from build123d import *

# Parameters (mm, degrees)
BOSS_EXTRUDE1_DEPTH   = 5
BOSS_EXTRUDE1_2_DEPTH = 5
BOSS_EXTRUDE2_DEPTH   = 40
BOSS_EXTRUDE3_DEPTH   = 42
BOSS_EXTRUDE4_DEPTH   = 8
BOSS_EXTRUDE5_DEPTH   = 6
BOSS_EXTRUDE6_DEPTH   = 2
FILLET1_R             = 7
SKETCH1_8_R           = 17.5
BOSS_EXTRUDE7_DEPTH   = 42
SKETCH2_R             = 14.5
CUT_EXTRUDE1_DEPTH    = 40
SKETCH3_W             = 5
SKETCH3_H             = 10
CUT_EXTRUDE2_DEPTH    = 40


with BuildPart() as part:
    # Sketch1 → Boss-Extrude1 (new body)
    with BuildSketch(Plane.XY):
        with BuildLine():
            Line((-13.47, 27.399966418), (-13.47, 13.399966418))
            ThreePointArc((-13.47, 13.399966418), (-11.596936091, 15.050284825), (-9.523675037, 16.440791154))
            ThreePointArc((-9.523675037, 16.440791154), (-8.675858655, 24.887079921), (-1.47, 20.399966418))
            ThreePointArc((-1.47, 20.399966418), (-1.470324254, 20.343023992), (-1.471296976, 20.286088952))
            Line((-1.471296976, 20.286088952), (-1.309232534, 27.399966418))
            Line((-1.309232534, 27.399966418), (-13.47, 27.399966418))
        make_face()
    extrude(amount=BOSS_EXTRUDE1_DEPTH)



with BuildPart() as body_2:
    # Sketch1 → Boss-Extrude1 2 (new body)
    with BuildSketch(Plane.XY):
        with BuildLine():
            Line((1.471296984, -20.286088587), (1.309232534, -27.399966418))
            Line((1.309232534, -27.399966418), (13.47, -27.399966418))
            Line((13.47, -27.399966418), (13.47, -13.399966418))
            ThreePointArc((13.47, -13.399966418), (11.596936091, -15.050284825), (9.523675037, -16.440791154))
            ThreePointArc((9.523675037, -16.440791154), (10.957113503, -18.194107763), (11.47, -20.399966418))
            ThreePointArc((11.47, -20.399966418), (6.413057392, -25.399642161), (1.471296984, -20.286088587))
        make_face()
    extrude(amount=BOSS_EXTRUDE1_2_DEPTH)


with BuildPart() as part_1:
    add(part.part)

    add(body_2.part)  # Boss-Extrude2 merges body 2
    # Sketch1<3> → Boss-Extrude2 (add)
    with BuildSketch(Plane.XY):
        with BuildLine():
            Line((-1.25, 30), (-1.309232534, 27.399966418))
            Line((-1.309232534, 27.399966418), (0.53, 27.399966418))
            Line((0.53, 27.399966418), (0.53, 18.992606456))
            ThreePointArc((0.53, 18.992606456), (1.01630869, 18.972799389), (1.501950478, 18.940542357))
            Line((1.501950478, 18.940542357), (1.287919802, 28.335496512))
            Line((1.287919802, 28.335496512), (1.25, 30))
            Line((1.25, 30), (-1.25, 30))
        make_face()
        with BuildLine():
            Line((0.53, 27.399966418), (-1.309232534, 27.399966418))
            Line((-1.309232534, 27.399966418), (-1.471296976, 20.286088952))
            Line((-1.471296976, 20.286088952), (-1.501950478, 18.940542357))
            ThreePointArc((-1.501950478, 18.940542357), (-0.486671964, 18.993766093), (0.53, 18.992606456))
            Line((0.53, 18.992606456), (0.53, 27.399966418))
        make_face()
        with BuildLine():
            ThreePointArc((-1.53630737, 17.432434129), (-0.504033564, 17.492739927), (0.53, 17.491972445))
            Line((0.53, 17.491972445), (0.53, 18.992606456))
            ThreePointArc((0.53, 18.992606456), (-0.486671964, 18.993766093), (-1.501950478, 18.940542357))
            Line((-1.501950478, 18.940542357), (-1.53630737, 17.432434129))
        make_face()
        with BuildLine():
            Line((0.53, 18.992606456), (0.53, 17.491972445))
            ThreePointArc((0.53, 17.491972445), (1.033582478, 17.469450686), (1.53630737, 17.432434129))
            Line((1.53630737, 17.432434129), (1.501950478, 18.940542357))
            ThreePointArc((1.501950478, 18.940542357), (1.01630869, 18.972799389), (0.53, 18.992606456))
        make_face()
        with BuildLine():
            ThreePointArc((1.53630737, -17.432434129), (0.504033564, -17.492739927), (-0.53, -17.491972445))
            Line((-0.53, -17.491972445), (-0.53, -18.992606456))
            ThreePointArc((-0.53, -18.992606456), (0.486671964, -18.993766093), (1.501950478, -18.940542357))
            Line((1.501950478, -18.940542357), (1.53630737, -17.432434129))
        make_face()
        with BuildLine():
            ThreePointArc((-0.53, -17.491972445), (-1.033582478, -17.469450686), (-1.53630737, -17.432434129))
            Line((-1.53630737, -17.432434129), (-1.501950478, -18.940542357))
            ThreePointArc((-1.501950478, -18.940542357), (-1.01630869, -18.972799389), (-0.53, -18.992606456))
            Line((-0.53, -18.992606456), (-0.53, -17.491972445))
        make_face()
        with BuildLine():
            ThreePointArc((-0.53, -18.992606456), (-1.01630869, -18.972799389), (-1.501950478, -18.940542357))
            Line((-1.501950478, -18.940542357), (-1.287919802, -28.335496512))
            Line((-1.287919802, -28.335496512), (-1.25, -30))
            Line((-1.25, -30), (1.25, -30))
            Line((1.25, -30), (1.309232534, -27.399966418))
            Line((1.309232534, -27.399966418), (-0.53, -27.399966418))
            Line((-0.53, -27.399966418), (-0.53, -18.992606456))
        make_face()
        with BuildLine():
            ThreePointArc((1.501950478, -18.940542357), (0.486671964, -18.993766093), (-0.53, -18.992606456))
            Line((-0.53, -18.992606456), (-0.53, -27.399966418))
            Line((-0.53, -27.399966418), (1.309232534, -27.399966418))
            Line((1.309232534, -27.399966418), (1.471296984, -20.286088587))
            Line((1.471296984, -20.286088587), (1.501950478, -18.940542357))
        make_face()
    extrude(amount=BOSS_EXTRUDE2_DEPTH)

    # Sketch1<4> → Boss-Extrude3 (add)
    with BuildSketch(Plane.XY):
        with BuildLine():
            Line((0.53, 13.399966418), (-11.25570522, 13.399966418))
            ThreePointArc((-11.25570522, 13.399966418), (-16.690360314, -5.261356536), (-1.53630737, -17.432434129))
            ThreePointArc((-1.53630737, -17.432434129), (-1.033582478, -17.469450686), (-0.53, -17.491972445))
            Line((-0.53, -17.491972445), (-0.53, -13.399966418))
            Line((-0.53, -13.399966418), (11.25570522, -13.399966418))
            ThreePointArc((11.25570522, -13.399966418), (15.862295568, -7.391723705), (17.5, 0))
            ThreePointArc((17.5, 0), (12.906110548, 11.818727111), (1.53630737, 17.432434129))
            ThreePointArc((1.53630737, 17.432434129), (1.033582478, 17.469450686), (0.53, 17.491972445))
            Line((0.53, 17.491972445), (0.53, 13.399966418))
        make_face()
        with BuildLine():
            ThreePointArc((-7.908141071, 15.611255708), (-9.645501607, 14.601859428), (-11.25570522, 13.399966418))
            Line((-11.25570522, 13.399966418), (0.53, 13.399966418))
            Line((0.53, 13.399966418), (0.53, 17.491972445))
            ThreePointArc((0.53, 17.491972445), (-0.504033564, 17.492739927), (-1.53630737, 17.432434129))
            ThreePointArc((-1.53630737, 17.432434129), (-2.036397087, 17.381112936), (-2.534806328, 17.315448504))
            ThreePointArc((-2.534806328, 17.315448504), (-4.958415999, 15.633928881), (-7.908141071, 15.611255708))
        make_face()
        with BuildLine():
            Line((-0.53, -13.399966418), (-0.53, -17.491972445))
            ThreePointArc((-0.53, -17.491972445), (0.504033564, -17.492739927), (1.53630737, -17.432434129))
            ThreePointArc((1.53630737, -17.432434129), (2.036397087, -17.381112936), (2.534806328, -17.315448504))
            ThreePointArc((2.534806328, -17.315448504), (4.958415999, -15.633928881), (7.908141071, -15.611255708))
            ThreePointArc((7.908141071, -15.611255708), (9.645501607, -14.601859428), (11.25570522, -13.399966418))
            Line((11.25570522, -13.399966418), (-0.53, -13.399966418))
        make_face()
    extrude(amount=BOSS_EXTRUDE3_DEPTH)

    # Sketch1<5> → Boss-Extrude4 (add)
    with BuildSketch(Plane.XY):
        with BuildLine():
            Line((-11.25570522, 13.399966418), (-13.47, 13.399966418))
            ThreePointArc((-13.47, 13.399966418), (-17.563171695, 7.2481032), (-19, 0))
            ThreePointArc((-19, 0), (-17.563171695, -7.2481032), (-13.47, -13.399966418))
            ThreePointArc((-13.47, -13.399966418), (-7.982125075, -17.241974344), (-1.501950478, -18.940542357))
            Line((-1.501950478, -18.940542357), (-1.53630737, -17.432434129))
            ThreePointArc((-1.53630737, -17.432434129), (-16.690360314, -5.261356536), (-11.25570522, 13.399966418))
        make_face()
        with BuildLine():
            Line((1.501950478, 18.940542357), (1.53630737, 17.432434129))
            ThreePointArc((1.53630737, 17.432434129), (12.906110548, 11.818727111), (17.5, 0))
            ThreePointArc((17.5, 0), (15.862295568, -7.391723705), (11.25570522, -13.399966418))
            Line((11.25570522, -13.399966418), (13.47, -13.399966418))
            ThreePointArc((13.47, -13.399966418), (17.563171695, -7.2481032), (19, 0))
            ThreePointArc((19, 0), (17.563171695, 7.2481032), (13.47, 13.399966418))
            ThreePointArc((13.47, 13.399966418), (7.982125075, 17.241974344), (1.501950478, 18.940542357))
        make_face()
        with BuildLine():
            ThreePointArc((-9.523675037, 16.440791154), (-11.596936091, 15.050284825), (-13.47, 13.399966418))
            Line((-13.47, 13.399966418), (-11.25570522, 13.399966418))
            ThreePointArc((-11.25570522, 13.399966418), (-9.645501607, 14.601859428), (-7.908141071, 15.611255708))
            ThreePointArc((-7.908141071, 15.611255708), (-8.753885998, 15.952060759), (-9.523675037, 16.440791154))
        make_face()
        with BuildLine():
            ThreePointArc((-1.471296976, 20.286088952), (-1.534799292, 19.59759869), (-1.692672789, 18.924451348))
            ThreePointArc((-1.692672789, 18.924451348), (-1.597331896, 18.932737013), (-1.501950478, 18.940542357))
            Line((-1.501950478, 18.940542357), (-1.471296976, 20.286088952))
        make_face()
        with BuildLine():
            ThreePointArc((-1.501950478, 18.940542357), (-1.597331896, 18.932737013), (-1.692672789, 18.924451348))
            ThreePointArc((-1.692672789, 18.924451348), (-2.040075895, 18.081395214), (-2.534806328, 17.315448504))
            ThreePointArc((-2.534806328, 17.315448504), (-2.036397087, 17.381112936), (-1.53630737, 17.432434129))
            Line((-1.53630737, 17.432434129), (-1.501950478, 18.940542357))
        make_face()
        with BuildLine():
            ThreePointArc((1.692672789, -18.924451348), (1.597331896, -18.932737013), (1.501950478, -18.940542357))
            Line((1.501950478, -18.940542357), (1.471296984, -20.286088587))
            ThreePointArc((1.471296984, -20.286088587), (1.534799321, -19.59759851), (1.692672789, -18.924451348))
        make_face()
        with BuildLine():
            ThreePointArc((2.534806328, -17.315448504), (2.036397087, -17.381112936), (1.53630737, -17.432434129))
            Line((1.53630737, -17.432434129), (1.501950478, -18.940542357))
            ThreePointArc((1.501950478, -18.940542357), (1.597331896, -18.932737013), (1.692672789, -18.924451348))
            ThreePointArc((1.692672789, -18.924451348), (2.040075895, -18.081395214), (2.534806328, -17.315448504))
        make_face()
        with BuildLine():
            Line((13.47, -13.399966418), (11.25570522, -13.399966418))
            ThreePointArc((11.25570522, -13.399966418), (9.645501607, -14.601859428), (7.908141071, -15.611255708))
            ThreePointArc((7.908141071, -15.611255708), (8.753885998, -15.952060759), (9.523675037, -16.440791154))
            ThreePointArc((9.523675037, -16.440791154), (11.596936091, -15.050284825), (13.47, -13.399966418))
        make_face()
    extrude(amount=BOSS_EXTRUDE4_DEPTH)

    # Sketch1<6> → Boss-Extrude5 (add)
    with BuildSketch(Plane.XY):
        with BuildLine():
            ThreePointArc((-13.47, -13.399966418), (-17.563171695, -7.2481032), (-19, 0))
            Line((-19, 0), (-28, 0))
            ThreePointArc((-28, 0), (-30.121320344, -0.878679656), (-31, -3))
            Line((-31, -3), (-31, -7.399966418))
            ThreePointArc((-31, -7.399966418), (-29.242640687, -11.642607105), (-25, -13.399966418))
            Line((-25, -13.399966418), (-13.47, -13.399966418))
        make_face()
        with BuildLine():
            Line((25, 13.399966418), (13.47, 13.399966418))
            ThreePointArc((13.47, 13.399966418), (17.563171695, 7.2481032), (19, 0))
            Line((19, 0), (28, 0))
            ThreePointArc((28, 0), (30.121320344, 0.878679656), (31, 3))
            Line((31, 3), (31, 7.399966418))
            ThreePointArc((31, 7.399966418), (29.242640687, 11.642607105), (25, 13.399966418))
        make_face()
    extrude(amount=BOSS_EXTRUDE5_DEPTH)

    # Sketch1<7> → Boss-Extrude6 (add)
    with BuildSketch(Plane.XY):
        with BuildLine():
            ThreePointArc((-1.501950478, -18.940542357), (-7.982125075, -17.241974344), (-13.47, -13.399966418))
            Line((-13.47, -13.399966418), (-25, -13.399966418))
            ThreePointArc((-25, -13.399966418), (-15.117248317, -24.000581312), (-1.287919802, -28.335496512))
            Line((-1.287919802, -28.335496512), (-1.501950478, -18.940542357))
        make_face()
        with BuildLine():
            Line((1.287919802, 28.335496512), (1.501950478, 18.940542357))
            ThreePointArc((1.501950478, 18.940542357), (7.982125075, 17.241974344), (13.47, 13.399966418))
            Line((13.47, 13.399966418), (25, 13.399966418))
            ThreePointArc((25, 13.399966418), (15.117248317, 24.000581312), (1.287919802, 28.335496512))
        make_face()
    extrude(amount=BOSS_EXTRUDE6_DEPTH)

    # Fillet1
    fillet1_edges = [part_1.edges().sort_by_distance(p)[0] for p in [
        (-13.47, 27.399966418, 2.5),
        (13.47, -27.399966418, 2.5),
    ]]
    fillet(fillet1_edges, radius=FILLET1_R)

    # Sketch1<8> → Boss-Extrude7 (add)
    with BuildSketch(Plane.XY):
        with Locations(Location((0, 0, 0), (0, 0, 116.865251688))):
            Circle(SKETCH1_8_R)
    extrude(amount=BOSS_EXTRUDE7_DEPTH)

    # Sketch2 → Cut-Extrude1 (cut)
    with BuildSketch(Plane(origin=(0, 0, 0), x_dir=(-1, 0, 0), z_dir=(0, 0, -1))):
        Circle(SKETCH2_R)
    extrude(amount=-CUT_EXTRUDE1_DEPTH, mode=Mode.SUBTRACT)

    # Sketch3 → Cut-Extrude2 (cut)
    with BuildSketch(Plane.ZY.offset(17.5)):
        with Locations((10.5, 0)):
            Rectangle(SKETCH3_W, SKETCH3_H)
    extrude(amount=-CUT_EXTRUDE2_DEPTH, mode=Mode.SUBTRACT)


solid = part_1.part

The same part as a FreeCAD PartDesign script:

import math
import FreeCAD as App
import Part
import Sketcher
Q = App.Units.Quantity


def edges_at(feature, points):
    """Names of the edges that pass closest to the given points."""
    edges = feature.Shape.Edges
    near = lambda p: min(range(len(edges)), key=lambda i: edges[i].distToShape(Part.Vertex(*p))[0])
    return sorted({f"Edge{near(p) + 1}" for p in points})


def add_polygon(sketch, points):
    """Adds a closed chain of lines whose ends are joined by coincident constraints."""
    first, n = sketch.GeometryCount, len(points)
    for a, b in zip(points, points[1:] + points[:1]):
        sketch.addGeometry(Part.LineSegment(App.Vector(*a, 0), App.Vector(*b, 0)), False)
    for i in range(n):
        sketch.addConstraint(Sketcher.Constraint("Coincident", first + i, 2, first + (i + 1) % n, 1))

doc = App.newDocument("Part")
body = doc.addObject("PartDesign::Body", "Body")

sketch1 = body.newObject("Sketcher::SketchObject", "Sketch")
sketch1.AttachmentSupport = (doc.getObject("XY_Plane"), [""])
sketch1.MapMode = "FlatFace"
sketch1.addGeometry([
    Part.LineSegment(App.Vector(-13.47, 27.399966, 0), App.Vector(-13.47, 13.399966, 0)),
    Part.ArcOfCircle(Part.Circle(App.Vector(0, 0, 0), App.Vector(0, 0, 1), 19), math.radians(120.082473), math.radians(135.149335)),
    Part.ArcOfCircle(Part.Circle(App.Vector(-6.47, 20.399966, 0), App.Vector(0, 0, 1), 5), math.radians(0), math.radians(232.357332)),
    Part.ArcOfCircle(Part.Circle(App.Vector(-6.469992, 20.399966, 0), App.Vector(0, 0, 1), 4.999992), math.radians(-1.305054), math.radians(0.000001)),
    Part.LineSegment(App.Vector(-1.471297, 20.286089, 0), App.Vector(-1.309233, 27.399966, 0)),
    Part.LineSegment(App.Vector(-1.309233, 27.399966, 0), App.Vector(-13.47, 27.399966, 0)),
], False)
sketch1.addConstraint([
    Sketcher.Constraint("Coincident", 0, 2, 1, 2),
    Sketcher.Constraint("Coincident", 1, 1, 2, 2),
    Sketcher.Constraint("Tangent", 2, 1, 3, 2),
    Sketcher.Constraint("Tangent", 3, 1, 4, 1),
    Sketcher.Constraint("Coincident", 4, 2, 5, 1),
    Sketcher.Constraint("Coincident", 5, 2, 0, 1),
    Sketcher.Constraint("Vertical", 0),
    Sketcher.Constraint("Horizontal", 5),
    Sketcher.Constraint("Coincident", 1, 3, -1, 1),
    Sketcher.Constraint("Horizontal", 3, 3, 2, 1),
    Sketcher.Constraint("Radius", 1, Q("19 mm")),
    Sketcher.Constraint("Radius", 2, Q("5 mm")),
    Sketcher.Constraint("DistanceY", 0, 2, 0, 1, Q("14 mm")),
    Sketcher.Constraint("DistanceX", 0, 2, 2, 3, Q("7 mm")),
    Sketcher.Constraint("DistanceY", 0, 2, 2, 3, Q("7 mm")),
    Sketcher.Constraint("DistanceX", 2, 3, -1, 1, Q("6.47 mm")),
    Sketcher.Constraint("Radius", 3, Q("4.999992 mm")),
    Sketcher.Constraint("DistanceX", 5, 2, 5, 1, Q("12.160767 mm")),
])
pad1 = body.newObject("PartDesign::Pad", "Pad")
pad1.Profile = sketch1
pad1.Length = 5
body2 = doc.addObject("PartDesign::Body", "Body001")

sketch2 = body2.newObject("Sketcher::SketchObject", "Sketch001")
sketch2.AttachmentSupport = (doc.getObject("XY_Plane001"), [""])
sketch2.MapMode = "FlatFace"
sketch2.addGeometry([
    Part.LineSegment(App.Vector(1.471297, -20.286089, 0), App.Vector(1.309233, -27.399966, 0)),
    Part.LineSegment(App.Vector(1.309233, -27.399966, 0), App.Vector(13.47, -27.399966, 0)),
    Part.LineSegment(App.Vector(13.47, -27.399966, 0), App.Vector(13.47, -13.399966, 0)),
    Part.ArcOfCircle(Part.Circle(App.Vector(0, 0, 0), App.Vector(0, 0, 1), 19), math.radians(-59.917527), math.radians(-44.850665)),
    Part.ArcOfCircle(Part.Circle(App.Vector(6.47, -20.399966, 0), App.Vector(0, 0, 1), 5), math.radians(0), math.radians(52.357332)),
    Part.ArcOfCircle(Part.Circle(App.Vector(6.47, -20.399966, 0), App.Vector(0, 0, 1), 5), math.radians(178.694943), math.radians(360)),
], False)
sketch2.addConstraint([
    Sketcher.Constraint("Coincident", 0, 2, 1, 1),
    Sketcher.Constraint("Coincident", 1, 2, 2, 1),
    Sketcher.Constraint("Coincident", 2, 2, 3, 2),
    Sketcher.Constraint("Coincident", 3, 1, 4, 2),
    Sketcher.Constraint("Tangent", 4, 1, 5, 2),
    Sketcher.Constraint("Tangent", 5, 1, 0, 1),
    Sketcher.Constraint("Horizontal", 1),
    Sketcher.Constraint("Vertical", 2),
    Sketcher.Constraint("Coincident", 3, 3, -1, 1),
    Sketcher.Constraint("Equal", 4, 5),
    Sketcher.Constraint("Horizontal", 5, 3, 4, 1),
    Sketcher.Constraint("Radius", 3, Q("19 mm")),
    Sketcher.Constraint("Radius", 4, Q("5 mm")),
    Sketcher.Constraint("DistanceY", 2, 1, 2, 2, Q("14 mm")),
    Sketcher.Constraint("DistanceY", 0, 2, 4, 3, Q("7 mm")),
    Sketcher.Constraint("DistanceX", 5, 3, 1, 2, Q("7 mm")),
    Sketcher.Constraint("DistanceX", -1, 1, 4, 3, Q("6.47 mm")),
    Sketcher.Constraint("DistanceX", 1, 1, 1, 2, Q("12.160767 mm")),
])
pad2 = body2.newObject("PartDesign::Pad", "Pad001")
pad2.Profile = sketch2
pad2.Length = 5
body.AllowCompound = True
doc.recompute()

boolean = body.newObject("PartDesign::Boolean", "Boolean")
boolean.Type = "Fuse"
boolean.addObjects([body2])

sketch3 = body.newObject("Sketcher::SketchObject", "Sketch002")
sketch3.AttachmentSupport = (doc.getObject("XY_Plane"), [""])
sketch3.MapMode = "FlatFace"
sketch3.addGeometry([
    Part.LineSegment(App.Vector(-1.25, 30, 0), App.Vector(-1.309233, 27.399966, 0)),
    Part.LineSegment(App.Vector(-1.309233, 27.399966, 0), App.Vector(-1.471297, 20.286089, 0)),
    Part.LineSegment(App.Vector(-1.471297, 20.286089, 0), App.Vector(-1.50195, 18.940542, 0)),
    Part.LineSegment(App.Vector(-1.50195, 18.940542, 0), App.Vector(-1.536307, 17.432434, 0)),
    Part.ArcOfCircle(Part.Circle(App.Vector(0, 0, 0), App.Vector(0, 0, 1), 17.5), math.radians(88.264491), math.radians(95.036422)),
    Part.ArcOfCircle(Part.Circle(App.Vector(0, 0, 0), App.Vector(0, 0, 1), 17.5), math.radians(84.963578), math.radians(88.264491)),
    Part.LineSegment(App.Vector(1.536307, 17.432434, 0), App.Vector(1.50195, 18.940542, 0)),
    Part.LineSegment(App.Vector(1.50195, 18.940542, 0), App.Vector(1.28792, 28.335497, 0)),
    Part.LineSegment(App.Vector(1.28792, 28.335497, 0), App.Vector(1.25, 30, 0)),
    Part.LineSegment(App.Vector(1.25, 30, 0), App.Vector(-1.25, 30, 0)),
    Part.ArcOfCircle(Part.Circle(App.Vector(0, 0, 0), App.Vector(0, 0, 1), 17.5), math.radians(-91.735509), math.radians(-84.963578)),
    Part.ArcOfCircle(Part.Circle(App.Vector(0, 0, 0), App.Vector(0, 0, 1), 17.5), math.radians(-95.036422), math.radians(-91.735509)),
    Part.LineSegment(App.Vector(-1.536307, -17.432434, 0), App.Vector(-1.50195, -18.940542, 0)),
    Part.LineSegment(App.Vector(-1.50195, -18.940542, 0), App.Vector(-1.28792, -28.335497, 0)),
    Part.LineSegment(App.Vector(-1.28792, -28.335497, 0), App.Vector(-1.25, -30, 0)),
    Part.LineSegment(App.Vector(-1.25, -30, 0), App.Vector(1.25, -30, 0)),
    Part.LineSegment(App.Vector(1.25, -30, 0), App.Vector(1.309233, -27.399966, 0)),
    Part.LineSegment(App.Vector(1.309233, -27.399966, 0), App.Vector(1.471297, -20.286089, 0)),
    Part.LineSegment(App.Vector(1.471297, -20.286089, 0), App.Vector(1.50195, -18.940542, 0)),
    Part.LineSegment(App.Vector(1.50195, -18.940542, 0), App.Vector(1.536307, -17.432434, 0)),
], False)
sketch3.addConstraint([
    Sketcher.Constraint("Coincident", 0, 2, 1, 1),
    Sketcher.Constraint("Coincident", 1, 2, 2, 1),
    Sketcher.Constraint("Coincident", 2, 2, 3, 1),
    Sketcher.Constraint("Coincident", 3, 2, 4, 2),
    Sketcher.Constraint("Tangent", 4, 1, 5, 2),
    Sketcher.Constraint("Coincident", 5, 1, 6, 1),
    Sketcher.Constraint("Coincident", 6, 2, 7, 1),
    Sketcher.Constraint("Coincident", 7, 2, 8, 1),
    Sketcher.Constraint("Coincident", 8, 2, 9, 1),
    Sketcher.Constraint("Coincident", 9, 2, 0, 1),
    Sketcher.Constraint("Tangent", 10, 1, 11, 2),
    Sketcher.Constraint("Coincident", 11, 1, 12, 1),
    Sketcher.Constraint("Coincident", 12, 2, 13, 1),
    Sketcher.Constraint("Coincident", 13, 2, 14, 1),
    Sketcher.Constraint("Coincident", 14, 2, 15, 1),
    Sketcher.Constraint("Coincident", 15, 2, 16, 1),
    Sketcher.Constraint("Coincident", 16, 2, 17, 1),
    Sketcher.Constraint("Coincident", 17, 2, 18, 1),
    Sketcher.Constraint("Coincident", 18, 2, 19, 1),
    Sketcher.Constraint("Coincident", 19, 2, 10, 2),
    Sketcher.Constraint("Horizontal", 9),
    Sketcher.Constraint("Horizontal", 15),
    Sketcher.Constraint("Coincident", 4, 3, -1, 1),
    Sketcher.Constraint("Coincident", 10, 3, -1, 1),
    Sketcher.Constraint("Equal", 4, 5),
    Sketcher.Constraint("Equal", 5, 10),
    Sketcher.Constraint("Equal", 10, 11),
    Sketcher.Constraint("Symmetric", 6, 2, 12, 2, -1, 1),
    Sketcher.Constraint("Symmetric", 7, 2, 13, 2, -1, 1),
    Sketcher.Constraint("Symmetric", 8, 2, 14, 2, -1, 1),
    Sketcher.Constraint("Symmetric", 0, 2, 16, 2, -1, 1),
    Sketcher.Constraint("Symmetric", 1, 2, 17, 2, -1, 1),
    Sketcher.Constraint("Symmetric", 2, 2, 18, 2, -1, 1),
    Sketcher.Constraint("Symmetric", 2, 2, 6, 2, -2),
    Sketcher.Constraint("Parallel", 0, 1),
    Sketcher.Constraint("Parallel", 1, 2),
    Sketcher.Constraint("Parallel", 2, 3),
    Sketcher.Constraint("Parallel", 6, 7),
    Sketcher.Constraint("Parallel", 7, 8),
    Sketcher.Constraint("Parallel", 8, 12),
    Sketcher.Constraint("Parallel", 3, 16),
    Sketcher.Constraint("Parallel", 18, 19),
    Sketcher.Constraint("Horizontal", 3, 2, 5, 1),
    Sketcher.Constraint("Radius", 4, Q("17.5 mm")),
    Sketcher.Constraint("DistanceX", 9, 2, 9, 1, Q("2.5 mm")),
    Sketcher.Constraint("DistanceY", -1, 1, 8, 2, Q("30 mm")),
    Sketcher.Constraint("DistanceX", -1, 1, 4, 1, Q("0.53 mm")),
    Sketcher.Constraint("DistanceX", 10, 1, -1, 1, Q("0.53 mm")),
    Sketcher.Constraint("Distance", 3, Q("1.5085 mm")),
    Sketcher.Constraint("DistanceX", 2, 2, 6, 2, Q("3.003901 mm")),
    Sketcher.Constraint("Distance", 0, Q("2.600708 mm")),
    Sketcher.Constraint("Distance", 7, Q("9.397392 mm")),
    Sketcher.Constraint("DistanceY", -1, 1, 1, 2, Q("20.286089 mm")),
])
pad3 = body.newObject("PartDesign::Pad", "Pad002")
pad3.Profile = sketch3
pad3.Length = 40

sketch4 = body.newObject("Sketcher::SketchObject", "Sketch003")
sketch4.AttachmentSupport = (doc.getObject("XY_Plane"), [""])
sketch4.MapMode = "FlatFace"
sketch4.addGeometry([
    Part.ArcOfCircle(Part.Circle(App.Vector(0, 0, 0), App.Vector(0, 0, 1), 17.5), math.radians(130.029591), math.radians(264.963578)),
    Part.ArcOfCircle(Part.Circle(App.Vector(0, 0, 0), App.Vector(0, 0, 1), 17.5), math.radians(-95.036422), math.radians(-91.735509)),
    Part.ArcOfCircle(Part.Circle(App.Vector(0, 0, 0), App.Vector(0, 0, 1), 17.5), math.radians(-91.735509), math.radians(-84.963578)),
    Part.ArcOfCircle(Part.Circle(App.Vector(0, 0.000001, 0), App.Vector(0, 0, 1), 17.500001), math.radians(-84.963578), math.radians(-81.671634)),
    Part.ArcOfCircle(Part.Circle(App.Vector(6.47, -20.399966, 0), App.Vector(0, 0, 1), 5), math.radians(73.283986), math.radians(141.909631)),
    Part.ArcOfCircle(Part.Circle(App.Vector(0, 0, 0), App.Vector(0, 0, 1), 17.5), math.radians(-63.134748), math.radians(-49.970409)),
    Part.ArcOfCircle(Part.Circle(App.Vector(0, 0, 0), App.Vector(0, 0, 1), 17.5), math.radians(-49.970409), math.radians(0)),
    Part.ArcOfCircle(Part.Circle(App.Vector(0, 0, 0), App.Vector(0, 0, 1), 17.5), math.radians(0), math.radians(84.963578)),
    Part.ArcOfCircle(Part.Circle(App.Vector(0, 0, 0), App.Vector(0, 0, 1), 17.5), math.radians(84.963578), math.radians(88.264491)),
    Part.ArcOfCircle(Part.Circle(App.Vector(0, 0, 0), App.Vector(0, 0, 1), 17.5), math.radians(88.264491), math.radians(95.036422)),
    Part.ArcOfCircle(Part.Circle(App.Vector(0, -0.000001, 0), App.Vector(0, 0, 1), 17.500001), math.radians(95.036422), math.radians(98.328366)),
    Part.ArcOfCircle(Part.Circle(App.Vector(-6.47, 20.399966, 0), App.Vector(0, 0, 1), 5), math.radians(-106.716014), math.radians(-38.090369)),
    Part.ArcOfCircle(Part.Circle(App.Vector(0, 0, 0), App.Vector(0, 0, 1), 17.5), math.radians(116.865252), math.radians(130.029591)),
], False)
sketch4.addConstraint([
    Sketcher.Constraint("Tangent", 0, 2, 1, 1),
    Sketcher.Constraint("Tangent", 1, 2, 2, 1),
    Sketcher.Constraint("Tangent", 2, 2, 3, 1),
    Sketcher.Constraint("Coincident", 3, 2, 4, 2),
    Sketcher.Constraint("Coincident", 4, 1, 5, 1),
    Sketcher.Constraint("Tangent", 5, 2, 6, 1),
    Sketcher.Constraint("Tangent", 6, 2, 7, 1),
    Sketcher.Constraint("Tangent", 7, 2, 8, 1),
    Sketcher.Constraint("Tangent", 8, 2, 9, 1),
    Sketcher.Constraint("Tangent", 9, 2, 10, 1),
    Sketcher.Constraint("Coincident", 10, 2, 11, 2),
    Sketcher.Constraint("Coincident", 11, 1, 12, 1),
    Sketcher.Constraint("Tangent", 12, 2, 0, 1),
    Sketcher.Constraint("Coincident", 0, 3, -1, 1),
    Sketcher.Constraint("Coincident", 2, 3, -1, 1),
    Sketcher.Constraint("Coincident", 5, 3, -1, 1),
    Sketcher.Constraint("Coincident", 7, 3, -1, 1),
    Sketcher.Constraint("Coincident", 9, 3, -1, 1),
    Sketcher.Constraint("Equal", 2, 3),
    Sketcher.Constraint("Equal", 3, 5),
    Sketcher.Constraint("Equal", 9, 10),
    Sketcher.Constraint("Equal", 4, 11),
    Sketcher.Constraint("Equal", 10, 12),
    Sketcher.Constraint("Symmetric", 4, 3, 11, 3, -1, 1),
    Sketcher.Constraint("PointOnObject", 6, 2, -1),
    Sketcher.Constraint("Horizontal", 0, 2, 2, 2),
    Sketcher.Constraint("Horizontal", 7, 2, 9, 2),
    Sketcher.Constraint("Vertical", 2, 2, 7, 2),
    Sketcher.Constraint("Radius", 4, Q("5 mm")),
    Sketcher.Constraint("Radius", 0, Q("17.5 mm")),
    Sketcher.Constraint("DistanceX", 1, 2, 4, 3, Q("7 mm")),
    Sketcher.Constraint("DistanceY", 4, 3, 5, 2, Q("7 mm")),
    Sketcher.Constraint("DistanceX", 11, 3, 8, 2, Q("7 mm")),
    Sketcher.Constraint("DistanceY", 12, 2, 11, 3, Q("7 mm")),
    Sketcher.Constraint("DistanceX", -1, 1, 4, 3, Q("6.47 mm")),
    Sketcher.Constraint("DistanceX", 2, 2, 3, 2, Q("0.998499 mm")),
    Sketcher.Constraint("DistanceX", 3, 2, 5, 2, Q("8.720899 mm")),
])
pad4 = body.newObject("PartDesign::Pad", "Pad003")
pad4.Profile = sketch4
pad4.Length = 42

sketch5 = body.newObject("Sketcher::SketchObject", "Sketch004")
sketch5.AttachmentSupport = (doc.getObject("XY_Plane"), [""])
sketch5.MapMode = "FlatFace"
sketch5.addGeometry([
    Part.ArcOfCircle(Part.Circle(App.Vector(0, 0, 0), App.Vector(0, 0, 1), 19), math.radians(135.149335), math.radians(180)),
    Part.ArcOfCircle(Part.Circle(App.Vector(0, 0, 0), App.Vector(0, 0, 1), 19), math.radians(-180), math.radians(-135.149335)),
    Part.ArcOfCircle(Part.Circle(App.Vector(0, 0, 0), App.Vector(0, 0, 1), 19), math.radians(-135.149335), math.radians(-94.533963)),
    Part.LineSegment(App.Vector(-1.50195, -18.940542, 0), App.Vector(-1.536307, -17.432434, 0)),
    Part.ArcOfCircle(Part.Circle(App.Vector(0, 0, 0), App.Vector(0, 0, 1), 17.5), math.radians(130.029591), math.radians(264.963578)),
    Part.ArcOfCircle(Part.Circle(App.Vector(0, 0, 0), App.Vector(0, 0, 1), 17.5), math.radians(116.865252), math.radians(130.029591)),
    Part.ArcOfCircle(Part.Circle(App.Vector(-6.47, 20.399966, 0), App.Vector(0, 0, 1), 5), math.radians(-127.642668), math.radians(-106.716014)),
    Part.ArcOfCircle(Part.Circle(App.Vector(0, 0, 0), App.Vector(0, 0, 1), 19), math.radians(120.082473), math.radians(135.149335)),
    Part.LineSegment(App.Vector(1.50195, 18.940542, 0), App.Vector(1.536307, 17.432434, 0)),
    Part.ArcOfCircle(Part.Circle(App.Vector(0, 0, 0), App.Vector(0, 0, 1), 17.5), math.radians(0), math.radians(84.963578)),
    Part.ArcOfCircle(Part.Circle(App.Vector(0, 0, 0), App.Vector(0, 0, 1), 17.5), math.radians(-49.970409), math.radians(0)),
    Part.ArcOfCircle(Part.Circle(App.Vector(0, 0, 0), App.Vector(0, 0, 1), 17.5), math.radians(-63.134748), math.radians(-49.970409)),
    Part.ArcOfCircle(Part.Circle(App.Vector(6.47, -20.399966, 0), App.Vector(0, 0, 1), 5), math.radians(52.357332), math.radians(73.283986)),
    Part.ArcOfCircle(Part.Circle(App.Vector(0, 0, 0), App.Vector(0, 0, 1), 19), math.radians(-59.917527), math.radians(-44.850665)),
    Part.ArcOfCircle(Part.Circle(App.Vector(0, 0, 0), App.Vector(0, 0, 1), 19), math.radians(-44.850665), math.radians(0)),
    Part.ArcOfCircle(Part.Circle(App.Vector(0, 0, 0), App.Vector(0, 0, 1), 19), math.radians(0), math.radians(44.850665)),
    Part.ArcOfCircle(Part.Circle(App.Vector(0, 0, 0), App.Vector(0, 0, 1), 19), math.radians(44.850665), math.radians(85.466037)),
    Part.ArcOfCircle(Part.Circle(App.Vector(-6.47, 20.399966, 0), App.Vector(0, 0, 1), 5), math.radians(-17.163715), math.radians(-1.305052)),
    Part.ArcOfCircle(Part.Circle(App.Vector(-6.47, 20.399966, 0), App.Vector(0, 0, 1), 5), math.radians(-38.090369), math.radians(-17.163715)),
    Part.ArcOfCircle(Part.Circle(App.Vector(0, -0.000001, 0), App.Vector(0, 0, 1), 17.500001), math.radians(95.036422), math.radians(98.328366)),
    Part.LineSegment(App.Vector(-1.536307, 17.432434, 0), App.Vector(-1.50195, 18.940542, 0)),
    Part.LineSegment(App.Vector(-1.50195, 18.940542, 0), App.Vector(-1.471297, 20.286089, 0)),
    Part.LineSegment(App.Vector(1.50195, -18.940542, 0), App.Vector(1.471297, -20.286089, 0)),
    Part.ArcOfCircle(Part.Circle(App.Vector(6.47, -20.399966, 0), App.Vector(0, 0, 1), 5), math.radians(162.836285), math.radians(178.694943)),
    Part.ArcOfCircle(Part.Circle(App.Vector(6.47, -20.399966, 0), App.Vector(0, 0, 1), 5), math.radians(141.909631), math.radians(162.836285)),
    Part.ArcOfCircle(Part.Circle(App.Vector(0, 0.000001, 0), App.Vector(0, 0, 1), 17.500001), math.radians(-84.963578), math.radians(-81.671634)),
    Part.LineSegment(App.Vector(1.536307, -17.432434, 0), App.Vector(1.50195, -18.940542, 0)),
], False)
sketch5.addConstraint([
    Sketcher.Constraint("Tangent", 0, 2, 1, 1),
    Sketcher.Constraint("Tangent", 1, 2, 2, 1),
    Sketcher.Constraint("Coincident", 2, 2, 3, 1),
    Sketcher.Constraint("Coincident", 3, 2, 4, 2),
    Sketcher.Constraint("Tangent", 4, 1, 5, 2),
    Sketcher.Constraint("Coincident", 5, 1, 6, 2),
    Sketcher.Constraint("Coincident", 6, 1, 7, 1),
    Sketcher.Constraint("Tangent", 7, 2, 0, 1),
    Sketcher.Constraint("Coincident", 8, 2, 9, 2),
    Sketcher.Constraint("Tangent", 9, 1, 10, 2),
    Sketcher.Constraint("Tangent", 10, 1, 11, 2),
    Sketcher.Constraint("Coincident", 11, 1, 12, 2),
    Sketcher.Constraint("Coincident", 12, 1, 13, 1),
    Sketcher.Constraint("Tangent", 13, 2, 14, 1),
    Sketcher.Constraint("Tangent", 14, 2, 15, 1),
    Sketcher.Constraint("Tangent", 15, 2, 16, 1),
    Sketcher.Constraint("Coincident", 16, 2, 8, 1),
    Sketcher.Constraint("Tangent", 17, 1, 18, 2),
    Sketcher.Constraint("Coincident", 18, 1, 19, 2),
    Sketcher.Constraint("Coincident", 19, 1, 20, 1),
    Sketcher.Constraint("Coincident", 20, 2, 21, 1),
    Sketcher.Constraint("Tangent", 21, 2, 17, 2),
    Sketcher.Constraint("Tangent", 22, 2, 23, 2),
    Sketcher.Constraint("Tangent", 23, 1, 24, 2),
    Sketcher.Constraint("Coincident", 24, 1, 25, 2),
    Sketcher.Constraint("Coincident", 25, 1, 26, 1),
    Sketcher.Constraint("Coincident", 26, 2, 22, 1),
    Sketcher.Constraint("Coincident", 0, 3, -1, 1),
    Sketcher.Constraint("Coincident", 2, 3, -1, 1),
    Sketcher.Constraint("Coincident", 4, 3, -1, 1),
    Sketcher.Constraint("Coincident", 9, 3, -1, 1),
    Sketcher.Constraint("Coincident", 11, 3, -1, 1),
    Sketcher.Constraint("Coincident", 13, 3, -1, 1),
    Sketcher.Constraint("Coincident", 15, 3, -1, 1),
    Sketcher.Constraint("Coincident", 19, 3, -1, 1),
    Sketcher.Constraint("Coincident", 25, 3, -1, 1),
    Sketcher.Constraint("Coincident", 17, 3, 6, 3),
    Sketcher.Constraint("Coincident", 23, 3, 12, 3),
    Sketcher.Constraint("Equal", 4, 5),
    Sketcher.Constraint("Equal", 2, 7),
    Sketcher.Constraint("Equal", 5, 9),
    Sketcher.Constraint("Equal", 6, 12),
    Sketcher.Constraint("Equal", 7, 13),
    Sketcher.Constraint("Equal", 15, 16),
    Sketcher.Constraint("Equal", 12, 17),
    Sketcher.Constraint("Equal", 17, 18),
    Sketcher.Constraint("Equal", 11, 19),
    Sketcher.Constraint("Equal", 18, 23),
    Sketcher.Constraint("Equal", 23, 24),
    Sketcher.Constraint("Equal", 19, 25),
    Sketcher.Constraint("Symmetric", 6, 3, 12, 3, -1, 1),
    Sketcher.Constraint("Symmetric", 20, 2, 26, 2, -1, 1),
    Sketcher.Constraint("Symmetric", 16, 2, 20, 2, -2),
    Sketcher.Constraint("PointOnObject", 0, 2, -1),
    Sketcher.Constraint("PointOnObject", 9, 1, -1),
    Sketcher.Constraint("PointOnObject", 14, 2, -1),
    Sketcher.Constraint("Parallel", 3, 8),
    Sketcher.Constraint("Parallel", 20, 21),
    Sketcher.Constraint("Parallel", 22, 26),
    Sketcher.Constraint("Horizontal", 4, 1, 7, 2),
    Sketcher.Constraint("Horizontal", 1, 2, 10, 1),
    Sketcher.Constraint("Horizontal", 10, 1, 13, 2),
    Sketcher.Constraint("Horizontal", 7, 2, 15, 2),
    Sketcher.Constraint("Horizontal", 8, 2, 19, 1),
    Sketcher.Constraint("Horizontal", 3, 2, 25, 1),
    Sketcher.Constraint("Vertical", 1, 2, 7, 2),
    Sketcher.Constraint("Radius", 0, Q("19 mm")),
    Sketcher.Constraint("Radius", 6, Q("5 mm")),
    Sketcher.Constraint("Radius", 4, Q("17.5 mm")),
    Sketcher.Constraint("DistanceY", 4, 1, 17, 3, Q("7 mm")),
    Sketcher.Constraint("DistanceX", 7, 2, 17, 3, Q("7 mm")),
    Sketcher.Constraint("DistanceX", 6, 3, -1, 1, Q("6.47 mm")),
    Sketcher.Constraint("Distance", 3, Q("1.5085 mm")),
    Sketcher.Constraint("DistanceY", -1, 1, 17, 1, Q("18.924451 mm")),
    Sketcher.Constraint("DistanceY", 23, 1, -1, 1, Q("18.924451 mm")),
])
pad5 = body.newObject("PartDesign::Pad", "Pad004")
pad5.Profile = sketch5
pad5.Length = 8

sketch6 = body.newObject("Sketcher::SketchObject", "Sketch005")
sketch6.AttachmentSupport = (doc.getObject("XY_Plane"), [""])
sketch6.MapMode = "FlatFace"
sketch6.addGeometry([
    Part.ArcOfCircle(Part.Circle(App.Vector(0, 0, 0), App.Vector(0, 0, 1), 19), math.radians(-180), math.radians(-135.149335)),
    Part.LineSegment(App.Vector(-19, 0, 0), App.Vector(-28, 0, 0)),
    Part.ArcOfCircle(Part.Circle(App.Vector(-28, -3, 0), App.Vector(0, 0, 1), 3), math.radians(90), math.radians(180)),
    Part.LineSegment(App.Vector(-31, -3, 0), App.Vector(-31, -7.399966, 0)),
    Part.ArcOfCircle(Part.Circle(App.Vector(-25, -7.399966, 0), App.Vector(0, 0, 1), 6), math.radians(180), math.radians(270)),
    Part.LineSegment(App.Vector(-25, -13.399966, 0), App.Vector(-13.47, -13.399966, 0)),
    Part.LineSegment(App.Vector(25, 13.399966, 0), App.Vector(13.47, 13.399966, 0)),
    Part.ArcOfCircle(Part.Circle(App.Vector(0, 0, 0), App.Vector(0, 0, 1), 19), math.radians(0), math.radians(44.850665)),
    Part.LineSegment(App.Vector(19, 0, 0), App.Vector(28, 0, 0)),
    Part.ArcOfCircle(Part.Circle(App.Vector(28, 3, 0), App.Vector(0, 0, 1), 3), math.radians(-90), math.radians(0)),
    Part.LineSegment(App.Vector(31, 3, 0), App.Vector(31, 7.399966, 0)),
    Part.ArcOfCircle(Part.Circle(App.Vector(25, 7.399966, 0), App.Vector(0, 0, 1), 6), math.radians(0), math.radians(90)),
], False)
sketch6.addConstraint([
    Sketcher.Constraint("Coincident", 0, 1, 1, 1),
    Sketcher.Constraint("Tangent", 1, 2, 2, 1),
    Sketcher.Constraint("Tangent", 2, 2, 3, 1),
    Sketcher.Constraint("Tangent", 3, 2, 4, 1),
    Sketcher.Constraint("Tangent", 4, 2, 5, 1),
    Sketcher.Constraint("Coincident", 5, 2, 0, 2),
    Sketcher.Constraint("Coincident", 6, 2, 7, 2),
    Sketcher.Constraint("Coincident", 7, 1, 8, 1),
    Sketcher.Constraint("Tangent", 8, 2, 9, 1),
    Sketcher.Constraint("Tangent", 9, 2, 10, 1),
    Sketcher.Constraint("Tangent", 10, 2, 11, 1),
    Sketcher.Constraint("Tangent", 11, 2, 6, 1),
    Sketcher.Constraint("Horizontal", 1),
    Sketcher.Constraint("Vertical", 3),
    Sketcher.Constraint("Horizontal", 5),
    Sketcher.Constraint("Horizontal", 6),
    Sketcher.Constraint("Horizontal", 8),
    Sketcher.Constraint("Vertical", 10),
    Sketcher.Constraint("Coincident", 0, 3, -1, 1),
    Sketcher.Constraint("Coincident", 7, 3, -1, 1),
    Sketcher.Constraint("Equal", 0, 7),
    Sketcher.Constraint("Equal", 2, 9),
    Sketcher.Constraint("Equal", 4, 11),
    Sketcher.Constraint("Symmetric", 2, 3, 9, 3, -1, 1),
    Sketcher.Constraint("PointOnObject", 0, 1, -1),
    Sketcher.Constraint("Equal", 5, 6),
    Sketcher.Constraint("Radius", 0, Q("19 mm")),
    Sketcher.Constraint("Radius", 2, Q("3 mm")),
    Sketcher.Constraint("Radius", 4, Q("6 mm")),
    Sketcher.Constraint("DistanceX", 1, 2, 1, 1, Q("9 mm")),
    Sketcher.Constraint("DistanceX", 5, 1, 5, 2, Q("11.53 mm")),
])
pad6 = body.newObject("PartDesign::Pad", "Pad005")
pad6.Profile = sketch6
pad6.Length = 6

sketch7 = body.newObject("Sketcher::SketchObject", "Sketch006")
sketch7.AttachmentSupport = (doc.getObject("XY_Plane"), [""])
sketch7.MapMode = "FlatFace"
sketch7.addGeometry([
    Part.ArcOfCircle(Part.Circle(App.Vector(0, 0, 0), App.Vector(0, 0, 1), 19), math.radians(-135.149335), math.radians(-94.533963)),
    Part.LineSegment(App.Vector(-13.47, -13.399966, 0), App.Vector(-25, -13.399966, 0)),
    Part.ArcOfCircle(Part.Circle(App.Vector(0, 0, 0), App.Vector(0, 0, 1), 28.364751), math.radians(-151.808751), math.radians(-92.602447)),
    Part.LineSegment(App.Vector(-1.28792, -28.335497, 0), App.Vector(-1.50195, -18.940542, 0)),
    Part.LineSegment(App.Vector(1.28792, 28.335497, 0), App.Vector(1.50195, 18.940542, 0)),
    Part.ArcOfCircle(Part.Circle(App.Vector(0, 0, 0), App.Vector(0, 0, 1), 19), math.radians(44.850665), math.radians(85.466037)),
    Part.LineSegment(App.Vector(13.47, 13.399966, 0), App.Vector(25, 13.399966, 0)),
    Part.ArcOfCircle(Part.Circle(App.Vector(0, 0, 0), App.Vector(0, 0, 1), 28.364751), math.radians(28.191249), math.radians(87.397553)),
], False)
sketch7.addConstraint([
    Sketcher.Constraint("Coincident", 0, 1, 1, 1),
    Sketcher.Constraint("Coincident", 1, 2, 2, 1),
    Sketcher.Constraint("Coincident", 2, 2, 3, 1),
    Sketcher.Constraint("Coincident", 3, 2, 0, 2),
    Sketcher.Constraint("Coincident", 4, 2, 5, 2),
    Sketcher.Constraint("Coincident", 5, 1, 6, 1),
    Sketcher.Constraint("Coincident", 6, 2, 7, 1),
    Sketcher.Constraint("Coincident", 7, 2, 4, 1),
    Sketcher.Constraint("Horizontal", 1),
    Sketcher.Constraint("Horizontal", 6),
    Sketcher.Constraint("Coincident", 0, 3, -1, 1),
    Sketcher.Constraint("Coincident", 2, 3, -1, 1),
    Sketcher.Constraint("Coincident", 5, 3, -1, 1),
    Sketcher.Constraint("Coincident", 7, 3, -1, 1),
    Sketcher.Constraint("Equal", 0, 5),
    Sketcher.Constraint("Equal", 2, 7),
    Sketcher.Constraint("Parallel", 3, 4),
    Sketcher.Constraint("Equal", 1, 6),
    Sketcher.Constraint("Equal", 3, 4),
    Sketcher.Constraint("Radius", 0, Q("19 mm")),
    Sketcher.Constraint("DistanceX", 1, 2, -1, 1, Q("25 mm")),
    Sketcher.Constraint("DistanceX", 1, 2, 1, 1, Q("11.53 mm")),
    Sketcher.Constraint("Distance", 3, Q("9.397392 mm")),
    Sketcher.Constraint("DistanceX", 2, 2, -1, 1, Q("1.28792 mm")),
])
pad7 = body.newObject("PartDesign::Pad", "Pad006")
pad7.Profile = sketch7
pad7.Length = 2
doc.recompute()

fillet = body.newObject("PartDesign::Fillet", "Fillet")
fillet.Base = (pad7, edges_at(pad7, [(-13.47, 27.4, 2.5), (13.47, -27.4, 2.5)]))
fillet.Radius = 7

sketch8 = body.newObject("Sketcher::SketchObject", "Sketch007")
sketch8.AttachmentSupport = (doc.getObject("XY_Plane"), [""])
sketch8.MapMode = "FlatFace"
sketch8.addGeometry(Part.Circle(App.Vector(0, 0, 0), App.Vector(0, 0, 1), 17.5), False)
sketch8.addConstraint([
    Sketcher.Constraint("Coincident", 0, 3, -1, 1),
    Sketcher.Constraint("Diameter", 0, Q("35 mm")),
])
pad8 = body.newObject("PartDesign::Pad", "Pad007")
pad8.Profile = sketch8
pad8.Length = 42

sketch9 = body.newObject("Sketcher::SketchObject", "Sketch008")
sketch9.AttachmentSupport = (doc.getObject("XY_Plane"), [""])
sketch9.MapMode = "FlatFace"
sketch9.addGeometry(Part.Circle(App.Vector(0, 0, 0), App.Vector(0, 0, 1), 14.5), False)
sketch9.addConstraint([
    Sketcher.Constraint("Coincident", 0, 3, -1, 1),
    Sketcher.Constraint("Diameter", 0, Q("29 mm")),
])
pocket1 = body.newObject("PartDesign::Pocket", "Pocket")
pocket1.Profile = sketch9
pocket1.Length = 40
pocket1.Reversed = True

sketch10 = body.newObject("Sketcher::SketchObject", "Sketch009")
sketch10.AttachmentSupport = (doc.getObject("YZ_Plane"), [""])
sketch10.MapMode = "FlatFace"
sketch10.AttachmentOffset = App.Placement(App.Vector(0, 0, -17.5), App.Rotation())
add_polygon(sketch10, [(5, 8), (-5, 8), (-5, 13), (5, 13)])
sketch10.addConstraint([
    Sketcher.Constraint("Horizontal", 0),
    Sketcher.Constraint("Vertical", 1),
    Sketcher.Constraint("Horizontal", 2),
    Sketcher.Constraint("Vertical", 3),
    Sketcher.Constraint("DistanceX", 0, 2, 0, 1, Q("10 mm")),
    Sketcher.Constraint("DistanceY", 1, 1, 1, 2, Q("5 mm")),
    Sketcher.Constraint("DistanceX", 0, 2, -1, 1, Q("5 mm")),
    Sketcher.Constraint("DistanceY", -1, 1, 0, 2, Q("8 mm")),
])
pocket2 = body.newObject("PartDesign::Pocket", "Pocket001")
pocket2.Profile = sketch10
pocket2.Length = 40
pocket2.Reversed = True

doc.recompute()
